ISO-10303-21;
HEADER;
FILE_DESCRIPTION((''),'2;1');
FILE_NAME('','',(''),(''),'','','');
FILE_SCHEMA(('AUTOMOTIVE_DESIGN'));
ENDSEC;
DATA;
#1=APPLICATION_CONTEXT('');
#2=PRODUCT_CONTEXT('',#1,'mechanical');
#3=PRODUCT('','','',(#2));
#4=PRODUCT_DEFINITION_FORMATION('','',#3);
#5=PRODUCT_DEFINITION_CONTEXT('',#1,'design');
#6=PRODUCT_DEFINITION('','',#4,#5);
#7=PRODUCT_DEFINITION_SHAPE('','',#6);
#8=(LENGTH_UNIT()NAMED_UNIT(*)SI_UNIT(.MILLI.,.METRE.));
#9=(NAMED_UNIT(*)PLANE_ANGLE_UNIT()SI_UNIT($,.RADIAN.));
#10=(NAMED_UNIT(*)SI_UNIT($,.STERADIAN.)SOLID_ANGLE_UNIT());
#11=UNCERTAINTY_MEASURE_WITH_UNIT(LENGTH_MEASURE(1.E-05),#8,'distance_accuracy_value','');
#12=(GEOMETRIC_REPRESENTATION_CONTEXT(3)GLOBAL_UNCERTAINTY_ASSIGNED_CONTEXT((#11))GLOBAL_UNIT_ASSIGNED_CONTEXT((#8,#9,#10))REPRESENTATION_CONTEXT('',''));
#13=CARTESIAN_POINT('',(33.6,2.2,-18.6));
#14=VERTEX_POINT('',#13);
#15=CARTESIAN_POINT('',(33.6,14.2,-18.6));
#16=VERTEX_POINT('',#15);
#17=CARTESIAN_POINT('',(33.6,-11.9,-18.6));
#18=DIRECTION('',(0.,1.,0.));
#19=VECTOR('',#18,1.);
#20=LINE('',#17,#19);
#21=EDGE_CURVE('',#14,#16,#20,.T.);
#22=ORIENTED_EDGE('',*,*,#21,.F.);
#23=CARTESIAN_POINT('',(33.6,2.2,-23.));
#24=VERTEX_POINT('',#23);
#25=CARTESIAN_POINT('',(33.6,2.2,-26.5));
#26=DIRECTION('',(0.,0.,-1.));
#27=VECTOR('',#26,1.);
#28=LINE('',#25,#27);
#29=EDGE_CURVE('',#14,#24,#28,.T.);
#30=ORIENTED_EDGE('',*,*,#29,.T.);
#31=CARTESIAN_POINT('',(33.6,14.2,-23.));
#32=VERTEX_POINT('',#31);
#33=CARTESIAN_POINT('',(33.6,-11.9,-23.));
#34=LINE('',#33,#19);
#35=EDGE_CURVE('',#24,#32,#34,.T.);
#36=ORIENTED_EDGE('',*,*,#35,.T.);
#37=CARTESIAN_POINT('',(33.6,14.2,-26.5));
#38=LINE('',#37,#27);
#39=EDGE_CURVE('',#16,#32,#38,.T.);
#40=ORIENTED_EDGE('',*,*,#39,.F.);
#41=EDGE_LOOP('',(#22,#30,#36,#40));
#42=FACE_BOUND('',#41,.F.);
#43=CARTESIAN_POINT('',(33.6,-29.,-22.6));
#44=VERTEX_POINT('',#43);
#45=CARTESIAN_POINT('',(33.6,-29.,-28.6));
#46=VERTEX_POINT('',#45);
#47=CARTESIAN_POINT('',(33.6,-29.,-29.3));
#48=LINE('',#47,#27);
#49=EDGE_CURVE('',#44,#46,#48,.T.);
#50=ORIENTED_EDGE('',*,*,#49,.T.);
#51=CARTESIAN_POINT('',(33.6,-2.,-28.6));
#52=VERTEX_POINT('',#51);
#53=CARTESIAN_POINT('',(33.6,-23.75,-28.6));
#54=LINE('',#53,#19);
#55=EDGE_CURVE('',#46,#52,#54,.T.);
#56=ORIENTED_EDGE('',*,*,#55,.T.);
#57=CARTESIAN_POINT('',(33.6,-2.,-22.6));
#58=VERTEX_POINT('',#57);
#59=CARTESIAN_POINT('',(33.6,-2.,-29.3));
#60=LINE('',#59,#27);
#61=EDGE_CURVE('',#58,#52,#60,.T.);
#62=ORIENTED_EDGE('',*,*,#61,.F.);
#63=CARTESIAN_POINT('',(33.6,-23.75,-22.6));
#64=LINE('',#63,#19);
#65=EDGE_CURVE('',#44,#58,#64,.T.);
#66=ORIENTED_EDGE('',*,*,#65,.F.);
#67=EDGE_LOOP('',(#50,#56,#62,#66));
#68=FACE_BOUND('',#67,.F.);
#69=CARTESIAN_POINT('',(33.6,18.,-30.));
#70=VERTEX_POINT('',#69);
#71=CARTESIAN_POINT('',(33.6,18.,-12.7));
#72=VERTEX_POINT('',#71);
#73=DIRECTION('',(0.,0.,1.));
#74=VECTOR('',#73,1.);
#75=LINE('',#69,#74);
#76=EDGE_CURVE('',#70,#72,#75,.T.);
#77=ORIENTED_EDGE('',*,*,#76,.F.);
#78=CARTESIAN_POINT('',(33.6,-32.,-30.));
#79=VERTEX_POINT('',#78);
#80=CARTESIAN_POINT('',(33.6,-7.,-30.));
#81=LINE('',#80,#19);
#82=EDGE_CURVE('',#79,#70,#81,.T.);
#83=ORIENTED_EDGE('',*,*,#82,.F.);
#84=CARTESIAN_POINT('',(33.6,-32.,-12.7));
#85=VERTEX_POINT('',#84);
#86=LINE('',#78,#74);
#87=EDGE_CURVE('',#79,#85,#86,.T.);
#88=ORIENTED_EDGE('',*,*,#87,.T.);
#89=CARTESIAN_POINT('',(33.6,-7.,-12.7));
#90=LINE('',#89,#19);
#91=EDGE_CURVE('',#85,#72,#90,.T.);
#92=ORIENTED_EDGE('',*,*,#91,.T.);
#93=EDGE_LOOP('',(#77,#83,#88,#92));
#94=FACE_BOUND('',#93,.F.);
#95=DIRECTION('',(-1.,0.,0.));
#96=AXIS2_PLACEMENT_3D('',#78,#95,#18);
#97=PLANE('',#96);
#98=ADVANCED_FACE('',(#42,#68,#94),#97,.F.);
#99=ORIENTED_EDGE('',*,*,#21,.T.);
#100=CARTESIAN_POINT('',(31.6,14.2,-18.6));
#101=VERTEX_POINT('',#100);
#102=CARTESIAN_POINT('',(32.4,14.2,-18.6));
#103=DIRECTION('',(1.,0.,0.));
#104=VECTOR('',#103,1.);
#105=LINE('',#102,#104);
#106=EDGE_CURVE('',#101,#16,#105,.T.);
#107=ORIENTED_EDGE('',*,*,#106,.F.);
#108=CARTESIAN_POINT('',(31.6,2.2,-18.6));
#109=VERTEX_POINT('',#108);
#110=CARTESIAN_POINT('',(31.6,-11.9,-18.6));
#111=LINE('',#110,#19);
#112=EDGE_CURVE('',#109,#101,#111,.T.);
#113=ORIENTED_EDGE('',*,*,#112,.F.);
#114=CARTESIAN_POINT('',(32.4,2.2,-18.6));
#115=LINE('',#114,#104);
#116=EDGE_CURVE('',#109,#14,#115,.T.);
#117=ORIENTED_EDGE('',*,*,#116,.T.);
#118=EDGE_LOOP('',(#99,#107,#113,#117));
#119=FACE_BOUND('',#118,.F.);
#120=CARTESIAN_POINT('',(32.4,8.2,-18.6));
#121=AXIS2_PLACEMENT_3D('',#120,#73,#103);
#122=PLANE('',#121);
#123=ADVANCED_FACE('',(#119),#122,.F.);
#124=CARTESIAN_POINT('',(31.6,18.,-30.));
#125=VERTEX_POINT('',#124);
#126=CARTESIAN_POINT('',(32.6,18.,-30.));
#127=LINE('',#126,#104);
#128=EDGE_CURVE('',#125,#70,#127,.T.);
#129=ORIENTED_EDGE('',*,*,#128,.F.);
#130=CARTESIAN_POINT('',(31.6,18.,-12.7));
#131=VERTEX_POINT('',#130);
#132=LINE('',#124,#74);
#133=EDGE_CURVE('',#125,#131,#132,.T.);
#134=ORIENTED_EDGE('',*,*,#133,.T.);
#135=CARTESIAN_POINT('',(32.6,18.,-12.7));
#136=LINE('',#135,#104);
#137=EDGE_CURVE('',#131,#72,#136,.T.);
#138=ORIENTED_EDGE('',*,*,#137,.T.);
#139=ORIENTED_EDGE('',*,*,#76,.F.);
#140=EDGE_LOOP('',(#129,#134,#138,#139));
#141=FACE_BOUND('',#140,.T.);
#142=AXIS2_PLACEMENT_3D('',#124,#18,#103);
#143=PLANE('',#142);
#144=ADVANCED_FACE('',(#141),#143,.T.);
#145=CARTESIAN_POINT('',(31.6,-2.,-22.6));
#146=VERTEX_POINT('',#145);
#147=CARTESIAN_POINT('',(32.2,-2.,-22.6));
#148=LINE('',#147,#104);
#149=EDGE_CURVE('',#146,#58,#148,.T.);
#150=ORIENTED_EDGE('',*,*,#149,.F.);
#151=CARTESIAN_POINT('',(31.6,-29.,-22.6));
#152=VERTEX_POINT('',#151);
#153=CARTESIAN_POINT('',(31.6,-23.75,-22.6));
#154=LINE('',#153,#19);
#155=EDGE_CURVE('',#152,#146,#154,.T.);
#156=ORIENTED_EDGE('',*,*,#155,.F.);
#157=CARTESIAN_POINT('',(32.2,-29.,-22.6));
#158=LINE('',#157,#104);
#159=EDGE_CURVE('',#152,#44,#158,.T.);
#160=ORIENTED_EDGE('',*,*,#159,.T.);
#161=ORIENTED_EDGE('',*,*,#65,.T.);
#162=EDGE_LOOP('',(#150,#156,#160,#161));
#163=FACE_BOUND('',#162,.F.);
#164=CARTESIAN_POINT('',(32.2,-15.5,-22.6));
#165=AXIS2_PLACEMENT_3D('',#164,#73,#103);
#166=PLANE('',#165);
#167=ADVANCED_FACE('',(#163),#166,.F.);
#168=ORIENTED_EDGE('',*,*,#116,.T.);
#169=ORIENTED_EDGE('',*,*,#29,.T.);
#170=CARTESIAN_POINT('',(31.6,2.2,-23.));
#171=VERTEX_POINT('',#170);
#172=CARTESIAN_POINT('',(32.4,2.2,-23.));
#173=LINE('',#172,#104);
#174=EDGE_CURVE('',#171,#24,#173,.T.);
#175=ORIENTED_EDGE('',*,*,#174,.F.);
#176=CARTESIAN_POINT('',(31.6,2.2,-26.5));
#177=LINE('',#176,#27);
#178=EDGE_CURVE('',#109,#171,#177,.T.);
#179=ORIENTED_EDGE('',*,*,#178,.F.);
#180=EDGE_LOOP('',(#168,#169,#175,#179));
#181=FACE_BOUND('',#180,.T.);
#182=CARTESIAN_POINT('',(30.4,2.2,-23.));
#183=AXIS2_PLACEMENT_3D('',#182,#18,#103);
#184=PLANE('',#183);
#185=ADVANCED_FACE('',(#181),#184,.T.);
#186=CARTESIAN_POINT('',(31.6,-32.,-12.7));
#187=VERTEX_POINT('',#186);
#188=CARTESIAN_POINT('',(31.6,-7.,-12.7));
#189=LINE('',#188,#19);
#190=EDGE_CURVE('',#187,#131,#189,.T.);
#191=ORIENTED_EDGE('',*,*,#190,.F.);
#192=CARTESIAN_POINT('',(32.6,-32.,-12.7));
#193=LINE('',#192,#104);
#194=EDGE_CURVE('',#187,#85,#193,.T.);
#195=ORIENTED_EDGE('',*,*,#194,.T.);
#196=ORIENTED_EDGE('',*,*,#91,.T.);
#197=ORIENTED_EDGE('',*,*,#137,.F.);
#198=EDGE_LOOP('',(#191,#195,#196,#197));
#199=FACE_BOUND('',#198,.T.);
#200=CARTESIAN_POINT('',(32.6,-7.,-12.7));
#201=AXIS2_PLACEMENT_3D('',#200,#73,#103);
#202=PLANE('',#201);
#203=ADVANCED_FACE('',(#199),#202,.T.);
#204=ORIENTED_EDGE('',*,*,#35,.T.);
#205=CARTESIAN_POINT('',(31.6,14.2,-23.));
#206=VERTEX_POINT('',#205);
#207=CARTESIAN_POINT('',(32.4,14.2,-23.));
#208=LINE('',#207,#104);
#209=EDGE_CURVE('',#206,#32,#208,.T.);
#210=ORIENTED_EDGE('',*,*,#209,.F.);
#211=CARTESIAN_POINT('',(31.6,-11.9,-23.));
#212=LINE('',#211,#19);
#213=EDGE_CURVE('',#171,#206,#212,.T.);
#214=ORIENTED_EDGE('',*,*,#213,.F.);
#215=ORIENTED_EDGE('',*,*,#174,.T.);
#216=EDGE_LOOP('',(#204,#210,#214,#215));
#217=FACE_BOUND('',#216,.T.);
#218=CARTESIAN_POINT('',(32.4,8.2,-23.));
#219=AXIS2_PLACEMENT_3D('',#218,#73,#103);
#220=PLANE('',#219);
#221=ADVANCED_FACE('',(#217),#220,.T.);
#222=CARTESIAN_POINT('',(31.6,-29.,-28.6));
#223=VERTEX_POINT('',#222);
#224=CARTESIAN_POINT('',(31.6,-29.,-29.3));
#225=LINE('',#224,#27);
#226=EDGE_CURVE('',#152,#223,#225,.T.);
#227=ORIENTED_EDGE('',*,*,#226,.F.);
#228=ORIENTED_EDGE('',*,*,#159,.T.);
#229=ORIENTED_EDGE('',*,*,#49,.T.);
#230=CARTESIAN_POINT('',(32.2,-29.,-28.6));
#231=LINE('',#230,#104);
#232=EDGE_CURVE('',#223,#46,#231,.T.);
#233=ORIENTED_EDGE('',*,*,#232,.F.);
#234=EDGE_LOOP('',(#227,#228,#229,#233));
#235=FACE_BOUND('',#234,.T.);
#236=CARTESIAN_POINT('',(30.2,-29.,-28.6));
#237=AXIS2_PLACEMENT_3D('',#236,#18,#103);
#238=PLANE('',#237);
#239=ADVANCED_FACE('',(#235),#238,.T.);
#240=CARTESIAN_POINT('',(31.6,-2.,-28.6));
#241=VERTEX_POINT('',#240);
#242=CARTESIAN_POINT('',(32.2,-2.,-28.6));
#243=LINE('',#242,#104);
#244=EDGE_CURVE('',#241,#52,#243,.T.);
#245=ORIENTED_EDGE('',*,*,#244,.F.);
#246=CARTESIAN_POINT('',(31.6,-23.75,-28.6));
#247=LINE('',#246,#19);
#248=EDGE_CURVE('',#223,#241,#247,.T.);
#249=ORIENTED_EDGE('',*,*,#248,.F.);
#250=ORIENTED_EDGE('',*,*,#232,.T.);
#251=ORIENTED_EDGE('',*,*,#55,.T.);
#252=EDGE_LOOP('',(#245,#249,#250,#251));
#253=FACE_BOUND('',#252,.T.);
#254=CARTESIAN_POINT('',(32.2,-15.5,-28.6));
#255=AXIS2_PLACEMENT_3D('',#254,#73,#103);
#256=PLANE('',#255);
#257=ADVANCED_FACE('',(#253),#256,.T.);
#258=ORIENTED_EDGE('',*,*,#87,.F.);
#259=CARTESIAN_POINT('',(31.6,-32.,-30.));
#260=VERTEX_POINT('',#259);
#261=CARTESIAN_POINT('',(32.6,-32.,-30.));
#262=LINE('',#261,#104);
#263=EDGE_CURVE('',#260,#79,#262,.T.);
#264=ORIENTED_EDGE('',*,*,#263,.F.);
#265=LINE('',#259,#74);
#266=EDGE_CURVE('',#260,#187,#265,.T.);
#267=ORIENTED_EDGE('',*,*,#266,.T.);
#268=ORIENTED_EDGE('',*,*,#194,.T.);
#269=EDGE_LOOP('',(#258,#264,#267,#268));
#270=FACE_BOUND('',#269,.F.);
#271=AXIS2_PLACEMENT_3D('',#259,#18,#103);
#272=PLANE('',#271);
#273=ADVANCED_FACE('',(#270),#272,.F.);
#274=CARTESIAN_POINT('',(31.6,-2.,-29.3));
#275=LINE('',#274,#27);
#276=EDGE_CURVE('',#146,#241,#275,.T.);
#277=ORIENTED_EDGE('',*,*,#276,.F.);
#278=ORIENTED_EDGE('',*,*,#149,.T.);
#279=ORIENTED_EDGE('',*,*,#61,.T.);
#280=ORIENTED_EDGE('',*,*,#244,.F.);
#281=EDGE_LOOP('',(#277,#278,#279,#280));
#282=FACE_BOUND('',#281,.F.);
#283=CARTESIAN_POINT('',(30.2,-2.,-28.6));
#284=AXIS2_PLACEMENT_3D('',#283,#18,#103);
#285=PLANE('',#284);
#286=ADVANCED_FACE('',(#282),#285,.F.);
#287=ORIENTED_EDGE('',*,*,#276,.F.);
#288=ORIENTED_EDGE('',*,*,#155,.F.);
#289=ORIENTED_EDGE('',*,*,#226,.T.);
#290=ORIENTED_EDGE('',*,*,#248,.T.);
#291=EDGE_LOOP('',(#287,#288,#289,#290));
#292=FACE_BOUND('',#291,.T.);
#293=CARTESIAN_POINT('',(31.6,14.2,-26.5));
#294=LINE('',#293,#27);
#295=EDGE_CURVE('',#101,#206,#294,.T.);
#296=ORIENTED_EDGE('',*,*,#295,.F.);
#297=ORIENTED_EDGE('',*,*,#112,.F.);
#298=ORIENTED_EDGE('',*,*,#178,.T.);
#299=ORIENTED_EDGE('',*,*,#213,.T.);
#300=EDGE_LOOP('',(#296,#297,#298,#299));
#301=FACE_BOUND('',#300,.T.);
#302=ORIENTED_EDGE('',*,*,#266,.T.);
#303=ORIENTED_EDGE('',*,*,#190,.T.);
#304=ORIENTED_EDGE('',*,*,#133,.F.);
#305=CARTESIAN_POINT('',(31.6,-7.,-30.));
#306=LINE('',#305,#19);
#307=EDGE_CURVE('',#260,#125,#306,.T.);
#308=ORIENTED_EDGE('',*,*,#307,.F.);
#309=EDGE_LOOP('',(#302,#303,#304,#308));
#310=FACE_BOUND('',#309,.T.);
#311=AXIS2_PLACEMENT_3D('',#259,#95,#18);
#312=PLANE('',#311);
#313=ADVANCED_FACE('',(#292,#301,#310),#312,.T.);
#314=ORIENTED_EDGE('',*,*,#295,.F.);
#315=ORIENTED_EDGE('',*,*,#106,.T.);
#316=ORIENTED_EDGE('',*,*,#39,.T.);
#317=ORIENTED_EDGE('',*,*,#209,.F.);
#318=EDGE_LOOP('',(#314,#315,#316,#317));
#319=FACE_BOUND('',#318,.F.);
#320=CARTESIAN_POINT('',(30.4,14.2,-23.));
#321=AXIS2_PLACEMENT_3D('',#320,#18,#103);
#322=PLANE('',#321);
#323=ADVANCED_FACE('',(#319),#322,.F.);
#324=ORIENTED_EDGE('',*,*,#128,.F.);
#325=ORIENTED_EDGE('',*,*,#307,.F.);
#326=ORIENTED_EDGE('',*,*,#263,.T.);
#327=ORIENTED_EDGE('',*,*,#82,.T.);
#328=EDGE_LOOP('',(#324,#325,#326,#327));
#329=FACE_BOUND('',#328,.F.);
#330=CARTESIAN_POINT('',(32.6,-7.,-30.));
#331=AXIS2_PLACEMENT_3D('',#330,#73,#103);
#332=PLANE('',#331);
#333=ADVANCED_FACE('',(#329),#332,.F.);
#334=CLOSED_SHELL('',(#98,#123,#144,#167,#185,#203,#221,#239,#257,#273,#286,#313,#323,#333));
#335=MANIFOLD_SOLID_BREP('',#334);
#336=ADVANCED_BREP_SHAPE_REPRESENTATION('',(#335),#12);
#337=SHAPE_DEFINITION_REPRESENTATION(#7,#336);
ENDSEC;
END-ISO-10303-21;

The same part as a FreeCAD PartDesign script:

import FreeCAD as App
import Part
import Sketcher
from FreeCAD import Vector
Q = App.Units.Quantity


def add_polygon(sketch, points):
    """Adds a closed chain of lines whose ends are joined by coincident constraints."""
    first, n = sketch.GeometryCount, len(points)
    for a, b in zip(points, points[1:] + points[:1]):
        sketch.addGeometry(Part.LineSegment(App.Vector(*a, 0), App.Vector(*b, 0)), False)
    for i in range(n):
        sketch.addConstraint(Sketcher.Constraint("Coincident", first + i, 2, first + (i + 1) % n, 1))

doc = App.newDocument("Part")
params = doc.addObject("Spreadsheet::Sheet", "Params")
for row, (alias, value) in enumerate([
    ("sketch1_width", "4 mm"),
    ("sketch1_height", "27 mm"),
    ("pad1_length", "6 mm"),
    ("sketch2_width", "4 mm"),
    ("sketch2_height", "12 mm"),
    ("pad2_length", "4.4 mm"),
    ("sketch3_width", "2 mm"),
    ("sketch3_height", "50 mm"),
    ("pad3_length", "17.3 mm"),
], start=1):
    params.set(f"A{row}", alias)
    params.set(f"B{row}", "=" + value)
    params.setAlias(f"B{row}", alias)

body = doc.addObject("PartDesign::Body", "Body")

sketch1 = body.newObject("Sketcher::SketchObject", "Sketch")
sketch1.AttachmentSupport = (doc.getObject("XY_Plane"), [""])
sketch1.MapMode = "FlatFace"
sketch1.AttachmentOffset = App.Placement(Vector(0, 0, -28.6), App.Rotation())
add_polygon(sketch1, [(30.2, -2), (30.2, -29), (34.2, -29), (34.2, -2)])
sketch1.addConstraint([
    Sketcher.Constraint("Vertical", 0),
    Sketcher.Constraint("Horizontal", 1),
    Sketcher.Constraint("Vertical", 2),
    Sketcher.Constraint("Horizontal", 3),
    Sketcher.Constraint("DistanceX", 1, 1, 1, 2, Q("4 mm")),
    Sketcher.Constraint("DistanceY", 0, 2, 0, 1, Q("27 mm")),
    Sketcher.Constraint("DistanceY", 0, 2, -1, 1, Q("29 mm")),
    Sketcher.Constraint("DistanceX", -1, 1, 0, 2, Q("30.2 mm")),
])
sketch1.setExpression("Constraints[8]", "Params.sketch1_width")
sketch1.setExpression("Constraints[9]", "Params.sketch1_height")
pad1 = body.newObject("PartDesign::Pad", "Pad")
pad1.Profile = sketch1
pad1.setExpression("Length", "Params.pad1_length")
body2 = doc.addObject("PartDesign::Body", "Body001")

sketch2 = body2.newObject("Sketcher::SketchObject", "Sketch001")
sketch2.AttachmentSupport = (doc.getObject("XY_Plane001"), [""])
sketch2.MapMode = "FlatFace"
sketch2.AttachmentOffset = App.Placement(Vector(0, 0, -23), App.Rotation())
add_polygon(sketch2, [(30.4, 14.2), (30.4, 2.2), (34.4, 2.2), (34.4, 14.2)])
sketch2.addConstraint([
    Sketcher.Constraint("Vertical", 0),
    Sketcher.Constraint("Horizontal", 1),
    Sketcher.Constraint("Vertical", 2),
    Sketcher.Constraint("Horizontal", 3),
    Sketcher.Constraint("DistanceX", 1, 1, 1, 2, Q("4 mm")),
    Sketcher.Constraint("DistanceY", 0, 2, 0, 1, Q("12 mm")),
    Sketcher.Constraint("DistanceX", -1, 1, 0, 2, Q("30.4 mm")),
    Sketcher.Constraint("DistanceY", -1, 1, 0, 2, Q("2.2 mm")),
])
sketch2.setExpression("Constraints[8]", "Params.sketch2_width")
sketch2.setExpression("Constraints[9]", "Params.sketch2_height")
pad2 = body2.newObject("PartDesign::Pad", "Pad001")
pad2.Profile = sketch2
pad2.setExpression("Length", "Params.pad2_length")
body3 = doc.addObject("PartDesign::Body", "Body002")

sketch3 = body3.newObject("Sketcher::SketchObject", "Sketch002")
sketch3.AttachmentSupport = (doc.getObject("XY_Plane002"), [""])
sketch3.MapMode = "FlatFace"
sketch3.AttachmentOffset = App.Placement(Vector(0, 0, -30), App.Rotation())
add_polygon(sketch3, [(31.6, 18), (31.6, -32), (33.6, -32), (33.6, 18)])
sketch3.addConstraint([
    Sketcher.Constraint("Vertical", 0),
    Sketcher.Constraint("Horizontal", 1),
    Sketcher.Constraint("Vertical", 2),
    Sketcher.Constraint("Horizontal", 3),
    Sketcher.Constraint("DistanceX", 1, 1, 1, 2, Q("2 mm")),
    Sketcher.Constraint("DistanceY", 0, 2, 0, 1, Q("50 mm")),
    Sketcher.Constraint("DistanceY", 0, 2, -1, 1, Q("32 mm")),
    Sketcher.Constraint("DistanceX", -1, 1, 0, 2, Q("31.6 mm")),
])
sketch3.setExpression("Constraints[8]", "Params.sketch3_width")
sketch3.setExpression("Constraints[9]", "Params.sketch3_height")
pad3 = body3.newObject("PartDesign::Pad", "Pad002")
pad3.Profile = sketch3
pad3.setExpression("Length", "Params.pad3_length")
doc.recompute()

boolean = body3.newObject("PartDesign::Boolean", "Boolean")
boolean.Type = "Cut"
boolean.addObjects([body2])
doc.recompute()

boolean2 = body3.newObject("PartDesign::Boolean", "Boolean001")
boolean2.Type = "Cut"
boolean2.addObjects([body])

doc.recompute()
